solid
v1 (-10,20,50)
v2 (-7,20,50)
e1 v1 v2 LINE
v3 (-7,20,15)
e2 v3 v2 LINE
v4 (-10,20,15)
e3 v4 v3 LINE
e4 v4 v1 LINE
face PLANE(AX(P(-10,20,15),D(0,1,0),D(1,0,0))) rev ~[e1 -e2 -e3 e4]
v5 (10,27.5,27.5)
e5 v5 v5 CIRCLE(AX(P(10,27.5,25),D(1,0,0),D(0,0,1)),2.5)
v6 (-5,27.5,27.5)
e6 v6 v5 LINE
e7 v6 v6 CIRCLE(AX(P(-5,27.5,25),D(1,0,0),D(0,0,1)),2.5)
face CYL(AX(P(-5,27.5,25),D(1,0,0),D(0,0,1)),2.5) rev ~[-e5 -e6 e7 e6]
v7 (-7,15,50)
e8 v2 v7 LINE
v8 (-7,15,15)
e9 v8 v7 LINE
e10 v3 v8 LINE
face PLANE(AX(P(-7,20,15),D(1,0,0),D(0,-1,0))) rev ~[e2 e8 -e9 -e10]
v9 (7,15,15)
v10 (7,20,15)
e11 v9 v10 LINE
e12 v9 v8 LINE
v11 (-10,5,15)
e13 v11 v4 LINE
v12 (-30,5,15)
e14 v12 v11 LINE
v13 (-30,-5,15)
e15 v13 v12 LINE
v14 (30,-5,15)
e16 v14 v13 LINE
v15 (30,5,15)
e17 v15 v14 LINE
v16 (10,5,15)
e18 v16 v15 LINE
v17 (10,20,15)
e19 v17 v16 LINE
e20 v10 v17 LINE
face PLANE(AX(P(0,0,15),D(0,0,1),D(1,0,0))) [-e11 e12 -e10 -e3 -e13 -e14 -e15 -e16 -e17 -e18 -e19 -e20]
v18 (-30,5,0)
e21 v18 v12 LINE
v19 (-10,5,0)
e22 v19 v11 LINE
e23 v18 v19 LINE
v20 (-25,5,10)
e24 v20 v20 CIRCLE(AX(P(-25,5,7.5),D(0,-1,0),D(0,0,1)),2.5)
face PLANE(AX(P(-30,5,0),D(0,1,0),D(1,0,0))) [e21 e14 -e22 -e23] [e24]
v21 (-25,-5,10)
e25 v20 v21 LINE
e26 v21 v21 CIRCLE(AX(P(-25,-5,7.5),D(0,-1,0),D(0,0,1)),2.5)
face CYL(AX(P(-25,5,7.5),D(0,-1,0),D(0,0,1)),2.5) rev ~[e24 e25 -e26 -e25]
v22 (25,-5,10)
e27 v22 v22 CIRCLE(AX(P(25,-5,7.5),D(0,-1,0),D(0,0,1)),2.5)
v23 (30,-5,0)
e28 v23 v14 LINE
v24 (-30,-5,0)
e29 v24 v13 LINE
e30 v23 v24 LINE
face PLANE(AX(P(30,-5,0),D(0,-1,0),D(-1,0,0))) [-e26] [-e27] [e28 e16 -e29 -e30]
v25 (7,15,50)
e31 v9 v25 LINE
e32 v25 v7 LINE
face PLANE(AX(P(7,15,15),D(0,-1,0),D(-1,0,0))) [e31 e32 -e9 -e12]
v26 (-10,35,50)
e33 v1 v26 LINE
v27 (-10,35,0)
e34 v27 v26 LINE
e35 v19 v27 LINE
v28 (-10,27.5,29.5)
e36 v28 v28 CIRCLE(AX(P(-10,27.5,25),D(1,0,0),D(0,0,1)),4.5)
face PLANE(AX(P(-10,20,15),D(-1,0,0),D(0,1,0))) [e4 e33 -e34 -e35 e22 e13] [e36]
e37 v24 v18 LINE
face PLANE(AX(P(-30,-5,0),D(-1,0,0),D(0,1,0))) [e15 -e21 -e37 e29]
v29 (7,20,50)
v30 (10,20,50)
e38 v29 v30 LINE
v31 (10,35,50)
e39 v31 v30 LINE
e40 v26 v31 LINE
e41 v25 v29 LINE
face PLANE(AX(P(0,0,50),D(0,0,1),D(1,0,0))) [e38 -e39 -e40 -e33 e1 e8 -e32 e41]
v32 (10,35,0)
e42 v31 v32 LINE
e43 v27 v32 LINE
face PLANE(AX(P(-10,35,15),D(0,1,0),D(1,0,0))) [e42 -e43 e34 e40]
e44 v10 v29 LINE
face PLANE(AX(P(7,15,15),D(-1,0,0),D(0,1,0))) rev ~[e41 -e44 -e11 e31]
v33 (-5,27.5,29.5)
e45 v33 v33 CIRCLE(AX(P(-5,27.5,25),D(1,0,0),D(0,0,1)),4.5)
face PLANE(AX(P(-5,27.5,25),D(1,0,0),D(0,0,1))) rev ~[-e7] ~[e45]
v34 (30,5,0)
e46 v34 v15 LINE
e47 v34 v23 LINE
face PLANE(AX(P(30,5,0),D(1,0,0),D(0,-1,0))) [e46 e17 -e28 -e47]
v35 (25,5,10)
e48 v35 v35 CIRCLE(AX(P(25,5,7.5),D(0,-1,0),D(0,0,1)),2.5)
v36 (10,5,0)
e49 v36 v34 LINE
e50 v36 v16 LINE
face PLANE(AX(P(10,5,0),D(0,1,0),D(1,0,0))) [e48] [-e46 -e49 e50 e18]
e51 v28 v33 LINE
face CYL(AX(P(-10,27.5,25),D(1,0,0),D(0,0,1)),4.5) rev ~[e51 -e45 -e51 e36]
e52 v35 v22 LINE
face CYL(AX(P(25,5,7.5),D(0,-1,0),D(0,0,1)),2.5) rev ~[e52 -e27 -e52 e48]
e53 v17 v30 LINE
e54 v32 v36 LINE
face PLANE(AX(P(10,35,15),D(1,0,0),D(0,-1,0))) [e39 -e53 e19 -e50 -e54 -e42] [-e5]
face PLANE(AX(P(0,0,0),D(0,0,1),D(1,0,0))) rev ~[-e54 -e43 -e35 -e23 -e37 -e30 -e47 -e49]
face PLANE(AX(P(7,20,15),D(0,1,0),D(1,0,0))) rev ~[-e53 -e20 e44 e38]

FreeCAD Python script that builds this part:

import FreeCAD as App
import Part
import Sketcher

V = App.Vector

doc = App.newDocument("Part")
params = doc.addObject("Spreadsheet::Sheet", "Params")
for row, (alias, value) in enumerate([
    ("sketch1_width", "20 mm"),
    ("sketch1_height", "10 mm"),
    ("sketch1_height2", "30 mm"),
    ("pad1_length", "15 mm"),
    ("sketch2_diameter", "5 mm"),
    ("hole_diameter", "5 mm"),
    ("sketch3_width", "20 mm"),
    ("sketch3_width2", "3 mm"),
    ("sketch3_height", "5 mm"),
    ("pad2_length", "35 mm"),
    ("sketch4_diameter", "5 mm"),
    ("hole2_diameter", "5 mm"),
    ("hole2_cbore_diameter", "9 mm"),
    ("hole2_cbore_depth", "5 mm"),
], start=1):
    params.set(f"A{row}", alias)
    params.set(f"B{row}", "=" + value)
    params.setAlias(f"B{row}", alias)

body = doc.addObject("PartDesign::Body", "Body")

# Sketch on XY plane
sketch1 = doc.addObject("Sketcher::SketchObject", "Sketch")
body.addObject(sketch1)
sketch1.AttachmentSupport = (doc.XY_Plane, [""])
sketch1.MapMode = "FlatFace"
sketch1.addGeometry([
    Part.LineSegment(V(-10, 5, 0), V(-30, 5, 0)),  # 0
    Part.LineSegment(V(-30, 5, 0), V(-30, -5, 0)),  # 1
    Part.LineSegment(V(-30, -5, 0), V(30, -5, 0)),  # 2
    Part.LineSegment(V(30, -5, 0), V(30, 5, 0)),  # 3
    Part.LineSegment(V(30, 5, 0), V(10, 5, 0)),  # 4
    Part.LineSegment(V(10, 5, 0), V(10, 35, 0)),  # 5
    Part.LineSegment(V(10, 35, 0), V(-10, 35, 0)),  # 6
    Part.LineSegment(V(-10, 35, 0), V(-10, 5, 0)),  # 7
], False)
sketch1.addConstraint([
    Sketcher.Constraint("Coincident", 0, 2, 1, 1),
    Sketcher.Constraint("Coincident", 1, 2, 2, 1),
    Sketcher.Constraint("Coincident", 2, 2, 3, 1),
    Sketcher.Constraint("Coincident", 3, 2, 4, 1),
    Sketcher.Constraint("Coincident", 4, 2, 5, 1),
    Sketcher.Constraint("Coincident", 5, 2, 6, 1),
    Sketcher.Constraint("Coincident", 6, 2, 7, 1),
    Sketcher.Constraint("Coincident", 7, 2, 0, 1),
    Sketcher.Constraint("Horizontal", 0),
    Sketcher.Constraint("Vertical", 1),
    Sketcher.Constraint("Horizontal", 2),
    Sketcher.Constraint("Vertical", 3),
    Sketcher.Constraint("Horizontal", 4),
    Sketcher.Constraint("Vertical", 5),
    Sketcher.Constraint("Horizontal", 6),
    Sketcher.Constraint("Vertical", 7),
    Sketcher.Constraint("Symmetric", 0, 2, 2, 2, -1, 1),
    Sketcher.Constraint("Symmetric", 4, 2, 7, 2, -2),
    Sketcher.Constraint("Equal", 4, 6),
    Sketcher.Constraint("DistanceX", 0, 2, 0, 1, 20.0),
    Sketcher.Constraint("DistanceY", 1, 2, 1, 1, 10.0),
    Sketcher.Constraint("DistanceY", 5, 1, 5, 2, 30.0),
])
sketch1.setExpression("Constraints[19]", "Params.sketch1_width")
sketch1.setExpression("Constraints[20]", "Params.sketch1_height")
sketch1.setExpression("Constraints[21]", "Params.sketch1_height2")
pad1 = doc.addObject("PartDesign::Pad", "Pad")
body.addObject(pad1)
pad1.Profile = sketch1
pad1.setExpression("Length", "Params.pad1_length")

# Sketch on XZ plane
sketch2 = doc.addObject("Sketcher::SketchObject", "Sketch001")
body.addObject(sketch2)
sketch2.AttachmentSupport = (doc.XZ_Plane, [""])
sketch2.MapMode = "FlatFace"
sketch2.AttachmentOffset = App.Placement(V(0, 0, -5), App.Rotation())
sketch2.addGeometry([
    Part.Circle(V(25, 7.5, 0), V(0, 0, 1), 2.5),
    Part.Circle(V(-25, 7.5, 0), V(0, 0, 1), 2.5),
], False)
sketch2.addConstraint([
    Sketcher.Constraint("Equal", 0, 1),
    Sketcher.Constraint("Symmetric", 0, 3, 1, 3, -2),
    Sketcher.Constraint("Diameter", 0, 5.0),
    Sketcher.Constraint("DistanceX", -1, 1, 0, 3, 25.0),
    Sketcher.Constraint("DistanceY", -1, 1, 0, 3, 7.5),
])
sketch2.setExpression("Constraints[2]", "Params.sketch2_diameter")
doc.recompute()
hole = doc.addObject("PartDesign::Hole", "Hole")
body.addObject(hole)
hole.Profile = sketch2
hole.ThreadType = "None"
hole.setExpression("Diameter", "Params.hole_diameter")
hole.DepthType = "ThroughAll"
hole.Reversed = True

# Sketch on XY plane
sketch3 = doc.addObject("Sketcher::SketchObject", "Sketch002")
body.addObject(sketch3)
sketch3.AttachmentSupport = (doc.XY_Plane, [""])
sketch3.MapMode = "FlatFace"
sketch3.AttachmentOffset = App.Placement(V(0, 0, 15), App.Rotation())
sketch3.addGeometry([
    Part.LineSegment(V(10, 35, 0), V(-10, 35, 0)),  # 0
    Part.LineSegment(V(-10, 35, 0), V(-10, 20, 0)),  # 1
    Part.LineSegment(V(-10, 20, 0), V(-7, 20, 0)),  # 2
    Part.LineSegment(V(-7, 20, 0), V(-7, 15, 0)),  # 3
    Part.LineSegment(V(-7, 15, 0), V(7, 15, 0)),  # 4
    Part.LineSegment(V(7, 15, 0), V(7, 20, 0)),  # 5
    Part.LineSegment(V(7, 20, 0), V(10, 20, 0)),  # 6
    Part.LineSegment(V(10, 20, 0), V(10, 35, 0)),  # 7
], False)
sketch3.addConstraint([
    Sketcher.Constraint("Coincident", 0, 2, 1, 1),
    Sketcher.Constraint("Coincident", 1, 2, 2, 1),
    Sketcher.Constraint("Coincident", 2, 2, 3, 1),
    Sketcher.Constraint("Coincident", 3, 2, 4, 1),
    Sketcher.Constraint("Coincident", 4, 2, 5, 1),
    Sketcher.Constraint("Coincident", 5, 2, 6, 1),
    Sketcher.Constraint("Coincident", 6, 2, 7, 1),
    Sketcher.Constraint("Coincident", 7, 2, 0, 1),
    Sketcher.Constraint("Horizontal", 0),
    Sketcher.Constraint("Vertical", 1),
    Sketcher.Constraint("Horizontal", 2),
    Sketcher.Constraint("Vertical", 3),
    Sketcher.Constraint("Horizontal", 4),
    Sketcher.Constraint("Vertical", 5),
    Sketcher.Constraint("Horizontal", 6),
    Sketcher.Constraint("Vertical", 7),
    Sketcher.Constraint("Symmetric", 2, 2, 5, 2, -2),
    Sketcher.Constraint("Equal", 2, 6),
    Sketcher.Constraint("DistanceX", 0, 2, 0, 1, 20.0),
    Sketcher.Constraint("DistanceX", 2, 1, 2, 2, 3.0),
    Sketcher.Constraint("DistanceY", 3, 2, 3, 1, 5.0),
    Sketcher.Constraint("DistanceY", -1, 1, 1, 2, 20.0),
    Sketcher.Constraint("DistanceY", 3, 2, 0, 2, 20.0),
])
sketch3.setExpression("Constraints[18]", "Params.sketch3_width")
sketch3.setExpression("Constraints[19]", "Params.sketch3_width2")
sketch3.setExpression("Constraints[20]", "Params.sketch3_height")
pad2 = doc.addObject("PartDesign::Pad", "Pad001")
body.addObject(pad2)
pad2.Profile = sketch3
pad2.setExpression("Length", "Params.pad2_length")

# Sketch on YZ plane
sketch4 = doc.addObject("Sketcher::SketchObject", "Sketch003")
body.addObject(sketch4)
sketch4.AttachmentSupport = (doc.YZ_Plane, [""])
sketch4.MapMode = "FlatFace"
sketch4.AttachmentOffset = App.Placement(V(0, 0, -10), App.Rotation())
sketch4.addGeometry(Part.Circle(V(27.5, 25, 0), V(0, 0, 1), 2.5), False)
sketch4.addConstraint([
    Sketcher.Constraint("Diameter", 0, 5.0),
    Sketcher.Constraint("DistanceY", -1, 1, 0, 3, 25.0),
    Sketcher.Constraint("DistanceX", -1, 1, 0, 3, 27.5),
])
sketch4.setExpression("Constraints[0]", "Params.sketch4_diameter")
doc.recompute()
hole2 = doc.addObject("PartDesign::Hole", "Hole001")
body.addObject(hole2)
hole2.Profile = sketch4
hole2.ThreadType = "None"
hole2.setExpression("Diameter", "Params.hole2_diameter")
hole2.DepthType = "ThroughAll"
hole2.HoleCutType = "Counterbore"
hole2.setExpression("HoleCutDiameter", "Params.hole2_cbore_diameter")
hole2.setExpression("HoleCutDepth", "Params.hole2_cbore_depth")
hole2.Reversed = True

doc.recompute()
